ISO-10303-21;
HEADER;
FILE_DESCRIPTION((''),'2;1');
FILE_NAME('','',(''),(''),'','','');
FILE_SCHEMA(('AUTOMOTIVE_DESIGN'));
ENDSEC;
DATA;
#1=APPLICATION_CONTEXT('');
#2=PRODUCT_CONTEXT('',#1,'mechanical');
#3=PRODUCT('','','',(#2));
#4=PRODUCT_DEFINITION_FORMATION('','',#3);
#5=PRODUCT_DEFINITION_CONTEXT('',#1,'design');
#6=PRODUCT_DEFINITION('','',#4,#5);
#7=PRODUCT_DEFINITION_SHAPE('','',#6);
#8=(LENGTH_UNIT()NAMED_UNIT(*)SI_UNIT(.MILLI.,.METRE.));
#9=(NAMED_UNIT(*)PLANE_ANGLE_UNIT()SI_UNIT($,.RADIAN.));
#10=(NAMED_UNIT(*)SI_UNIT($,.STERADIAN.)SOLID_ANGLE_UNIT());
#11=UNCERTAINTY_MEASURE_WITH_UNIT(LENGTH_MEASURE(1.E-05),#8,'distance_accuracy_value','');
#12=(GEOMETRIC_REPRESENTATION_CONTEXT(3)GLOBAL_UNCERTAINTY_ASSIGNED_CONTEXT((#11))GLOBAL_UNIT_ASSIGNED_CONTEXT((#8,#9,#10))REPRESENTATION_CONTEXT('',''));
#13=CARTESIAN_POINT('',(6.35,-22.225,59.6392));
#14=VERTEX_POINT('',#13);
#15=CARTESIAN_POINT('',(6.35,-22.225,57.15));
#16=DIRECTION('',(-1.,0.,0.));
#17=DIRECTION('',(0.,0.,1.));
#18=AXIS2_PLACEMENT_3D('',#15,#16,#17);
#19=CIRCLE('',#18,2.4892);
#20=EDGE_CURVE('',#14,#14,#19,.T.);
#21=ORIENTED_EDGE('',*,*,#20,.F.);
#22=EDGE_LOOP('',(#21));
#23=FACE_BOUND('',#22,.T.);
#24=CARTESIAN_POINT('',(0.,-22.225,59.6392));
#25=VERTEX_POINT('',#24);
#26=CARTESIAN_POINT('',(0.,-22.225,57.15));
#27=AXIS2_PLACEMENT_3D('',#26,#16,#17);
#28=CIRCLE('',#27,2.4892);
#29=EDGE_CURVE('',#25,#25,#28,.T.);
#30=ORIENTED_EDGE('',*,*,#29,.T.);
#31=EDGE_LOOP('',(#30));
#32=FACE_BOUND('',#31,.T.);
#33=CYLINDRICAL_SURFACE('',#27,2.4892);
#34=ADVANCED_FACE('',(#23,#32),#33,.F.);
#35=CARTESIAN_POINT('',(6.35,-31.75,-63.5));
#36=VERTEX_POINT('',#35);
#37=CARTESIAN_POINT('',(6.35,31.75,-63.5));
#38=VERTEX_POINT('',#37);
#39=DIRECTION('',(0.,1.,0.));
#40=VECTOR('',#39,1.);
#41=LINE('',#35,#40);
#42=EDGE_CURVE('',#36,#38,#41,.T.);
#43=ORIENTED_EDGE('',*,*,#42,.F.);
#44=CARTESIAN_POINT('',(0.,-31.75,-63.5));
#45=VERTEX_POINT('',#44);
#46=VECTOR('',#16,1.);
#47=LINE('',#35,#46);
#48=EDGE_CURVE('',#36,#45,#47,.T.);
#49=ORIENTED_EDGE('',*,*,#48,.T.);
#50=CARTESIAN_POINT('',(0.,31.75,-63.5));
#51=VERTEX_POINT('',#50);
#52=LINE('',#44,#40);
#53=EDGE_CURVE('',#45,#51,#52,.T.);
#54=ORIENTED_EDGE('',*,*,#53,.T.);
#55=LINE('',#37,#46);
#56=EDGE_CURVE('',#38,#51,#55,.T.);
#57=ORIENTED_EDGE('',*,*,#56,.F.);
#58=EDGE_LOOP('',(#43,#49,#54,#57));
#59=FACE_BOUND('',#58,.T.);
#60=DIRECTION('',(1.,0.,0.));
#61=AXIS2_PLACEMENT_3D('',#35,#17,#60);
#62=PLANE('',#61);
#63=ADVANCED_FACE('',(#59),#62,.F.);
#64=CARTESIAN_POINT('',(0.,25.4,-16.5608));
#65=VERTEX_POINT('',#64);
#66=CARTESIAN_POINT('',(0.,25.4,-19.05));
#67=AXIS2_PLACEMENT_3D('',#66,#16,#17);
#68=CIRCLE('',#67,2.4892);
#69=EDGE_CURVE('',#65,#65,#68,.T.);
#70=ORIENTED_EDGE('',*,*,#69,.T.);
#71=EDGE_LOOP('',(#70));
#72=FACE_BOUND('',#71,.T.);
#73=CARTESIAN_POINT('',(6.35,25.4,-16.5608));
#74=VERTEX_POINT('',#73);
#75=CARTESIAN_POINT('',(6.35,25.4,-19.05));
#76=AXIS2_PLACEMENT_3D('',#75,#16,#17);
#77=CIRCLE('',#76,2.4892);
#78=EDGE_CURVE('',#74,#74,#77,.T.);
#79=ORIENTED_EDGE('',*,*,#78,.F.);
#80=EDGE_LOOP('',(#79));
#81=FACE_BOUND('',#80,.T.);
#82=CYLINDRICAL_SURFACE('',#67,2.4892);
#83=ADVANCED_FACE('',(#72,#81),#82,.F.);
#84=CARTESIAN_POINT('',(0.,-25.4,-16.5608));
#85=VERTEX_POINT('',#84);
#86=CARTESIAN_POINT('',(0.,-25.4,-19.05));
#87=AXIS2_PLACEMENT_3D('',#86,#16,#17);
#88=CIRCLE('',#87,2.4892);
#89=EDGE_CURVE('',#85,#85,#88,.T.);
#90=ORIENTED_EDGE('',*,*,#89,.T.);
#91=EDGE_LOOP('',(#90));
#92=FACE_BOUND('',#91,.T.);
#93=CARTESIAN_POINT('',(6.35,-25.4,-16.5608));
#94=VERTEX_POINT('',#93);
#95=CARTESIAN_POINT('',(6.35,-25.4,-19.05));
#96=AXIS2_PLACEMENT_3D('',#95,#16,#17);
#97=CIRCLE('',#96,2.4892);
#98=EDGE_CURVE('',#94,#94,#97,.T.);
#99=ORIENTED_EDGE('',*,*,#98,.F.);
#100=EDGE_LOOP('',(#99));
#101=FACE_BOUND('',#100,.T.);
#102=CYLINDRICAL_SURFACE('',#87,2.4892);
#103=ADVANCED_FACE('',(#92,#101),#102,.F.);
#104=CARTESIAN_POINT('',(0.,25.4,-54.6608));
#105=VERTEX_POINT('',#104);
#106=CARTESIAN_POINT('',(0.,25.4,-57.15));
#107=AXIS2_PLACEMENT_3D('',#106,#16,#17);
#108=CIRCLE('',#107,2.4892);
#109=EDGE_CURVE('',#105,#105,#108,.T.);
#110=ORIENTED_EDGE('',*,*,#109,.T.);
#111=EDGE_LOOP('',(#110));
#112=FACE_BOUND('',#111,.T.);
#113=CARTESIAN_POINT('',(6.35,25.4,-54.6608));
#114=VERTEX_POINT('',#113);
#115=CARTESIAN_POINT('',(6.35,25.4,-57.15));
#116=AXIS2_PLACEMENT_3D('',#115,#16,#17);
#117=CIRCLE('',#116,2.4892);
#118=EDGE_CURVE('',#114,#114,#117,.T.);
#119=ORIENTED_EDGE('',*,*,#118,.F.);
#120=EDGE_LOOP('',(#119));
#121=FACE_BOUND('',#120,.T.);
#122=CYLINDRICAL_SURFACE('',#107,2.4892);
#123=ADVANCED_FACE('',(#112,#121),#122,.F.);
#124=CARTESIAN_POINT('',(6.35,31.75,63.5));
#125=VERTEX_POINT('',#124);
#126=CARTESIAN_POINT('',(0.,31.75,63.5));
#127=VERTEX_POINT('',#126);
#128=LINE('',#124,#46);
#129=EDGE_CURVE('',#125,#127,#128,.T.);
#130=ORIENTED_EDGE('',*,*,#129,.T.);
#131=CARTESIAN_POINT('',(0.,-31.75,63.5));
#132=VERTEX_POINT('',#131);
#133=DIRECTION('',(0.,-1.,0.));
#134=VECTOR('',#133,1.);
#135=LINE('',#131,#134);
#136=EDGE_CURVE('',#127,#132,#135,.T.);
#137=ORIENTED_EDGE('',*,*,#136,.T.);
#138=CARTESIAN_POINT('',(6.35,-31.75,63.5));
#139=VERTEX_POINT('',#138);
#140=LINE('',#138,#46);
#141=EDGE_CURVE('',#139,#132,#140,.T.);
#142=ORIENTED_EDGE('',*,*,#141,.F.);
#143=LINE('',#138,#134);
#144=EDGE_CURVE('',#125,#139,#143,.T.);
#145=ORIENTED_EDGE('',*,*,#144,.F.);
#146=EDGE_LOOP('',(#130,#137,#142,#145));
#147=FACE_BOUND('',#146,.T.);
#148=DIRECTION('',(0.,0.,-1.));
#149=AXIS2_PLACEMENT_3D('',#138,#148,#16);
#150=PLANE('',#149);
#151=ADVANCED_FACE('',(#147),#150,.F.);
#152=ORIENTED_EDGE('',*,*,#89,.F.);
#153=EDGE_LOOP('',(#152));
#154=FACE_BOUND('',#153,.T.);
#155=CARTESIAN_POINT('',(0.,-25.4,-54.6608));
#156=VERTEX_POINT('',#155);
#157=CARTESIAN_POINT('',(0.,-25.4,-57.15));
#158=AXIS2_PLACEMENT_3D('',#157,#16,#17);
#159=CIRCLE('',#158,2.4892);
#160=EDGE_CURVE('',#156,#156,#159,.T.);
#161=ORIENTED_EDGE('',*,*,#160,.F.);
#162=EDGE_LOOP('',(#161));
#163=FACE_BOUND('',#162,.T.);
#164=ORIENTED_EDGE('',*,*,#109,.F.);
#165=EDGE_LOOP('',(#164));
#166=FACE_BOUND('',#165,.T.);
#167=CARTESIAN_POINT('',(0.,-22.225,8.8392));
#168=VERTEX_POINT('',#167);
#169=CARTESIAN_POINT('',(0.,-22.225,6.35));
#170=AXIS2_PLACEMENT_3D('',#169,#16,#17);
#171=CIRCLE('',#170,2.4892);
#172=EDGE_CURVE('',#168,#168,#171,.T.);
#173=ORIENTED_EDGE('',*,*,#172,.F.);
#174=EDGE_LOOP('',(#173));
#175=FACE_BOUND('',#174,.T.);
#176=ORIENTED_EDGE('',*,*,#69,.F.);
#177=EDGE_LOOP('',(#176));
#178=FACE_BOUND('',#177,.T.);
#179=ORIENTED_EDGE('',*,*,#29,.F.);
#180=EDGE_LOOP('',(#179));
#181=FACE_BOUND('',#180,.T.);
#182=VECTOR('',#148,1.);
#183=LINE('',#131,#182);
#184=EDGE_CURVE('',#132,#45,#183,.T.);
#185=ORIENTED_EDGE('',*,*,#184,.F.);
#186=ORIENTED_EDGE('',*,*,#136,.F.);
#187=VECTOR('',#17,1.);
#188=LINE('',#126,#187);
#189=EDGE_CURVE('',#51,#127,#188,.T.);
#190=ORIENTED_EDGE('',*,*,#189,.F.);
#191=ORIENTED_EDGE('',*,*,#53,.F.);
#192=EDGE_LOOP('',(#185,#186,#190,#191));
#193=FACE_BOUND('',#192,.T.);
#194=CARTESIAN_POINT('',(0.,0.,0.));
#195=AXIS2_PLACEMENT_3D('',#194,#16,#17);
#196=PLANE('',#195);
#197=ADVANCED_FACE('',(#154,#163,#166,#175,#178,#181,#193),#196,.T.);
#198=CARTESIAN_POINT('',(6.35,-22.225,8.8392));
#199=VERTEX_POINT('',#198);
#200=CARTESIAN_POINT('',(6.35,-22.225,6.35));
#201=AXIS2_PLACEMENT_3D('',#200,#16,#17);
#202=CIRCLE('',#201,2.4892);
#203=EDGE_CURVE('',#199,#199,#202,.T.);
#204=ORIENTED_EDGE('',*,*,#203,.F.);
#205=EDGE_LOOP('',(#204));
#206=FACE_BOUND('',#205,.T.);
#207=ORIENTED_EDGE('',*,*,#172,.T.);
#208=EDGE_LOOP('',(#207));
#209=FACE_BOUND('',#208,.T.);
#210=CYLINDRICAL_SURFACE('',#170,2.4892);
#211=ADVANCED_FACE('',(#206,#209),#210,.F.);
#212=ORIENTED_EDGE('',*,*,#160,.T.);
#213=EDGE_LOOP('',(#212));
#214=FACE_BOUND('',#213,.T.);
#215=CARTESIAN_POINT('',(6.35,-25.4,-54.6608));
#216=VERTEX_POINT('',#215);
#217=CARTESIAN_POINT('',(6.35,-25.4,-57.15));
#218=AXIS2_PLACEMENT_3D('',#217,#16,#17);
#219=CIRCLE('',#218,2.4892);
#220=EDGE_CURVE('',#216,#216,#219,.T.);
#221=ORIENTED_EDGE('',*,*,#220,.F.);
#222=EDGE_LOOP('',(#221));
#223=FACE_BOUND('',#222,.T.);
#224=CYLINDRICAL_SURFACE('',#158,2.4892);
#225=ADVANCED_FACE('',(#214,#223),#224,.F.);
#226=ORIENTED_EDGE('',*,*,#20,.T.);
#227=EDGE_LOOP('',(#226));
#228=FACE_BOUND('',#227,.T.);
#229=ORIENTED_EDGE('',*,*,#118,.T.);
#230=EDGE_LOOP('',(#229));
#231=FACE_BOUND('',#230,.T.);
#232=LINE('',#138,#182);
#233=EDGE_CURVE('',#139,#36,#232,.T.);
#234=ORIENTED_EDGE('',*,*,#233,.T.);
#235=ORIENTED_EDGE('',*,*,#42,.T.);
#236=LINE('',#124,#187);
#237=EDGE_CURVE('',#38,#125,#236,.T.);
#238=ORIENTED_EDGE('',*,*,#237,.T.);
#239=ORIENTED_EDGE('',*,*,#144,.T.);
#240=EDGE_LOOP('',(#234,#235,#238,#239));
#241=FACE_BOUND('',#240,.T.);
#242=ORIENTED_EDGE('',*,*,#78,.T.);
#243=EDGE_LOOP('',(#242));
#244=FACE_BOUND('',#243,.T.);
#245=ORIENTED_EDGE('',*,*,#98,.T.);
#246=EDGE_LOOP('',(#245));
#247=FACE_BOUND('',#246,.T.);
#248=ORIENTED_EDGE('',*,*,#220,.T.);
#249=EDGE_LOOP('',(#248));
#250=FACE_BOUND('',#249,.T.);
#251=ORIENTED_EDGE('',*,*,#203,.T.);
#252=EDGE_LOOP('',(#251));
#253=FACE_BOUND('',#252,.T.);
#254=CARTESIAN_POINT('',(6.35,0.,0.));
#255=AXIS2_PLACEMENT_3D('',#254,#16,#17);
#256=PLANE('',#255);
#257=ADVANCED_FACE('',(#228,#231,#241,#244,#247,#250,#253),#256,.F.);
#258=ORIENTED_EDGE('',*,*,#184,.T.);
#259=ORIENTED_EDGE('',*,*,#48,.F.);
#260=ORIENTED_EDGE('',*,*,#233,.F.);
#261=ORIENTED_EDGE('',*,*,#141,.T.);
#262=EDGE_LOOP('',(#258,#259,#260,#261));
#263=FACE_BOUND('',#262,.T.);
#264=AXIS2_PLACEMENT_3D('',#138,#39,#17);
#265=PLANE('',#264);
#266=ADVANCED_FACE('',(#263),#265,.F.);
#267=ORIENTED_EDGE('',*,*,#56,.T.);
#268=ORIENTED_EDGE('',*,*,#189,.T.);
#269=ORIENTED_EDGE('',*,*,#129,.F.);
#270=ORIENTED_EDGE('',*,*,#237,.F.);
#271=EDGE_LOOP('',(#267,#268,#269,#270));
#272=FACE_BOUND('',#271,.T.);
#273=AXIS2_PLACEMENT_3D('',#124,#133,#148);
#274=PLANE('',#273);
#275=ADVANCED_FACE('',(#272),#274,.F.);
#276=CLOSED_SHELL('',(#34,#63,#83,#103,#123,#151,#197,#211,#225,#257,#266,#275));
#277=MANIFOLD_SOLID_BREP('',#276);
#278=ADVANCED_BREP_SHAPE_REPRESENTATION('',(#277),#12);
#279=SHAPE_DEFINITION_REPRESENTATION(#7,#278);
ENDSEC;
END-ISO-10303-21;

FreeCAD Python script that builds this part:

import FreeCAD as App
import Part
import Sketcher
Q = App.Units.Quantity


def add_polygon(sketch, points):
    """Adds a closed chain of lines whose ends are joined by coincident constraints."""
    first, n = sketch.GeometryCount, len(points)
    for a, b in zip(points, points[1:] + points[:1]):
        sketch.addGeometry(Part.LineSegment(App.Vector(*a, 0), App.Vector(*b, 0)), False)
    for i in range(n):
        sketch.addConstraint(Sketcher.Constraint("Coincident", first + i, 2, first + (i + 1) % n, 1))

doc = App.newDocument("Part")
params = doc.addObject("Spreadsheet::Sheet", "Params")
for row, (alias, value) in enumerate([
    ("sketch1_height", "5 in"),
    ("sketch1_width", "2.5 in"),
    ("pad1_length", "0.25 in"),
    ("sketch2_diameter", "0.196 in"),
    ("hole_diameter", "0.196 in"),
    ("hole_depth", "2.76 in"),
    ("sketch3_diameter", "0.196 in"),
    ("hole2_diameter", "0.196 in"),
    ("hole2_depth", "2.76 in"),
], start=1):
    params.set(f"A{row}", alias)
    params.set(f"B{row}", "=" + value)
    params.setAlias(f"B{row}", alias)

body = doc.addObject("PartDesign::Body", "Body")

sketch1 = body.newObject("Sketcher::SketchObject", "Sketch")
sketch1.AttachmentSupport = (doc.getObject("YZ_Plane"), [""])
sketch1.MapMode = "FlatFace"
add_polygon(sketch1, [(32, 64), (-32, 64), (-32, -64), (32, -64)])
sketch1.addConstraint(Sketcher.Constraint("Horizontal", 0))
sketch1.addConstraint(Sketcher.Constraint("Vertical", 1))
sketch1.addConstraint(Sketcher.Constraint("Horizontal", 2))
sketch1.addConstraint(Sketcher.Constraint("Vertical", 3))
sketch1.addConstraint(Sketcher.Constraint("Symmetric", 0, 2, 2, 2, -1, 1))
sketch1.addConstraint(Sketcher.Constraint("DistanceY", 1, 2, 1, 1, Q("5 in")))
sketch1.addConstraint(Sketcher.Constraint("DistanceX", 0, 2, 0, 1, Q("2.5 in")))
sketch1.setExpression("Constraints[9]", "Params.sketch1_height")
sketch1.setExpression("Constraints[10]", "Params.sketch1_width")
pad1 = body.newObject("PartDesign::Pad", "Pad")
pad1.Profile = sketch1
pad1.setExpression("Length", "Params.pad1_length")

sketch2 = body.newObject("Sketcher::SketchObject", "Sketch001")
sketch2.AttachmentSupport = (doc.getObject("YZ_Plane"), [""])
sketch2.MapMode = "FlatFace"
sketch2.addGeometry(Part.Circle(App.Vector(-22.2, 57.1, 0), App.Vector(0, 0, 1), 2.5), False)
sketch2.addGeometry(Part.Circle(App.Vector(-22.2, 6.3, 0), App.Vector(0, 0, 1), 2.5), False)
sketch2.addConstraint(Sketcher.Constraint("Equal", 0, 1))
sketch2.addConstraint(Sketcher.Constraint("Vertical", 0, 3, 1, 3))
sketch2.addConstraint(Sketcher.Constraint("Diameter", 0, Q("0.196 in")))
sketch2.addConstraint(Sketcher.Constraint("DistanceY", 1, 3, 0, 3, Q("2 in")))
sketch2.addConstraint(Sketcher.Constraint("DistanceY", -1, 1, 0, 3, Q("2.25 in")))
sketch2.addConstraint(Sketcher.Constraint("DistanceX", 0, 3, -1, 1, Q("0.875 in")))
sketch2.setExpression("Constraints[2]", "Params.sketch2_diameter")
doc.recompute()
hole = body.newObject("PartDesign::Hole", "Hole")
hole.Profile = sketch2
hole.ThreadType = "None"
hole.setExpression("Diameter", "Params.hole_diameter")
hole.DepthType = "Dimension"
hole.setExpression("Depth", "Params.hole_depth")
hole.DrillPoint = "Angled"
hole.DrillPointAngle = 118
hole.Reversed = True

sketch3 = body.newObject("Sketcher::SketchObject", "Sketch002")
sketch3.AttachmentSupport = (doc.getObject("YZ_Plane"), [""])
sketch3.MapMode = "FlatFace"
sketch3.addGeometry(Part.Circle(App.Vector(-25.4, -57.1, 0), App.Vector(0, 0, 1), 2.5), False)
sketch3.addGeometry(Part.Circle(App.Vector(-25.4, -19.1, 0), App.Vector(0, 0, 1), 2.5), False)
sketch3.addGeometry(Part.Circle(App.Vector(25.4, -19.1, 0), App.Vector(0, 0, 1), 2.5), False)
sketch3.addGeometry(Part.Circle(App.Vector(25.4, -57.1, 0), App.Vector(0, 0, 1), 2.5), False)
sketch3.addConstraint(Sketcher.Constraint("Equal", 0, 1))
sketch3.addConstraint(Sketcher.Constraint("Equal", 1, 2))
sketch3.addConstraint(Sketcher.Constraint("Equal", 2, 3))
sketch3.addConstraint(Sketcher.Constraint("Symmetric", 1, 3, 2, 3, -2))
sketch3.addConstraint(Sketcher.Constraint("Symmetric", 0, 3, 3, 3, -2))
sketch3.addConstraint(Sketcher.Constraint("Vertical", 0, 3, 1, 3))
sketch3.addConstraint(Sketcher.Constraint("Diameter", 0, Q("0.196 in")))
sketch3.addConstraint(Sketcher.Constraint("DistanceX", 0, 3, -1, 1, Q("1 in")))
sketch3.addConstraint(Sketcher.Constraint("DistanceY", 0, 3, 1, 3, Q("1.5 in")))
sketch3.addConstraint(Sketcher.Constraint("DistanceY", 0, 3, -1, 1, Q("2.25 in")))
sketch3.setExpression("Constraints[6]", "Params.sketch3_diameter")
doc.recompute()
hole2 = body.newObject("PartDesign::Hole", "Hole001")
hole2.Profile = sketch3
hole2.ThreadType = "None"
hole2.setExpression("Diameter", "Params.hole2_diameter")
hole2.DepthType = "Dimension"
hole2.setExpression("Depth", "Params.hole2_depth")
hole2.DrillPoint = "Angled"
hole2.DrillPointAngle = 118
hole2.Reversed = True

doc.recompute()
